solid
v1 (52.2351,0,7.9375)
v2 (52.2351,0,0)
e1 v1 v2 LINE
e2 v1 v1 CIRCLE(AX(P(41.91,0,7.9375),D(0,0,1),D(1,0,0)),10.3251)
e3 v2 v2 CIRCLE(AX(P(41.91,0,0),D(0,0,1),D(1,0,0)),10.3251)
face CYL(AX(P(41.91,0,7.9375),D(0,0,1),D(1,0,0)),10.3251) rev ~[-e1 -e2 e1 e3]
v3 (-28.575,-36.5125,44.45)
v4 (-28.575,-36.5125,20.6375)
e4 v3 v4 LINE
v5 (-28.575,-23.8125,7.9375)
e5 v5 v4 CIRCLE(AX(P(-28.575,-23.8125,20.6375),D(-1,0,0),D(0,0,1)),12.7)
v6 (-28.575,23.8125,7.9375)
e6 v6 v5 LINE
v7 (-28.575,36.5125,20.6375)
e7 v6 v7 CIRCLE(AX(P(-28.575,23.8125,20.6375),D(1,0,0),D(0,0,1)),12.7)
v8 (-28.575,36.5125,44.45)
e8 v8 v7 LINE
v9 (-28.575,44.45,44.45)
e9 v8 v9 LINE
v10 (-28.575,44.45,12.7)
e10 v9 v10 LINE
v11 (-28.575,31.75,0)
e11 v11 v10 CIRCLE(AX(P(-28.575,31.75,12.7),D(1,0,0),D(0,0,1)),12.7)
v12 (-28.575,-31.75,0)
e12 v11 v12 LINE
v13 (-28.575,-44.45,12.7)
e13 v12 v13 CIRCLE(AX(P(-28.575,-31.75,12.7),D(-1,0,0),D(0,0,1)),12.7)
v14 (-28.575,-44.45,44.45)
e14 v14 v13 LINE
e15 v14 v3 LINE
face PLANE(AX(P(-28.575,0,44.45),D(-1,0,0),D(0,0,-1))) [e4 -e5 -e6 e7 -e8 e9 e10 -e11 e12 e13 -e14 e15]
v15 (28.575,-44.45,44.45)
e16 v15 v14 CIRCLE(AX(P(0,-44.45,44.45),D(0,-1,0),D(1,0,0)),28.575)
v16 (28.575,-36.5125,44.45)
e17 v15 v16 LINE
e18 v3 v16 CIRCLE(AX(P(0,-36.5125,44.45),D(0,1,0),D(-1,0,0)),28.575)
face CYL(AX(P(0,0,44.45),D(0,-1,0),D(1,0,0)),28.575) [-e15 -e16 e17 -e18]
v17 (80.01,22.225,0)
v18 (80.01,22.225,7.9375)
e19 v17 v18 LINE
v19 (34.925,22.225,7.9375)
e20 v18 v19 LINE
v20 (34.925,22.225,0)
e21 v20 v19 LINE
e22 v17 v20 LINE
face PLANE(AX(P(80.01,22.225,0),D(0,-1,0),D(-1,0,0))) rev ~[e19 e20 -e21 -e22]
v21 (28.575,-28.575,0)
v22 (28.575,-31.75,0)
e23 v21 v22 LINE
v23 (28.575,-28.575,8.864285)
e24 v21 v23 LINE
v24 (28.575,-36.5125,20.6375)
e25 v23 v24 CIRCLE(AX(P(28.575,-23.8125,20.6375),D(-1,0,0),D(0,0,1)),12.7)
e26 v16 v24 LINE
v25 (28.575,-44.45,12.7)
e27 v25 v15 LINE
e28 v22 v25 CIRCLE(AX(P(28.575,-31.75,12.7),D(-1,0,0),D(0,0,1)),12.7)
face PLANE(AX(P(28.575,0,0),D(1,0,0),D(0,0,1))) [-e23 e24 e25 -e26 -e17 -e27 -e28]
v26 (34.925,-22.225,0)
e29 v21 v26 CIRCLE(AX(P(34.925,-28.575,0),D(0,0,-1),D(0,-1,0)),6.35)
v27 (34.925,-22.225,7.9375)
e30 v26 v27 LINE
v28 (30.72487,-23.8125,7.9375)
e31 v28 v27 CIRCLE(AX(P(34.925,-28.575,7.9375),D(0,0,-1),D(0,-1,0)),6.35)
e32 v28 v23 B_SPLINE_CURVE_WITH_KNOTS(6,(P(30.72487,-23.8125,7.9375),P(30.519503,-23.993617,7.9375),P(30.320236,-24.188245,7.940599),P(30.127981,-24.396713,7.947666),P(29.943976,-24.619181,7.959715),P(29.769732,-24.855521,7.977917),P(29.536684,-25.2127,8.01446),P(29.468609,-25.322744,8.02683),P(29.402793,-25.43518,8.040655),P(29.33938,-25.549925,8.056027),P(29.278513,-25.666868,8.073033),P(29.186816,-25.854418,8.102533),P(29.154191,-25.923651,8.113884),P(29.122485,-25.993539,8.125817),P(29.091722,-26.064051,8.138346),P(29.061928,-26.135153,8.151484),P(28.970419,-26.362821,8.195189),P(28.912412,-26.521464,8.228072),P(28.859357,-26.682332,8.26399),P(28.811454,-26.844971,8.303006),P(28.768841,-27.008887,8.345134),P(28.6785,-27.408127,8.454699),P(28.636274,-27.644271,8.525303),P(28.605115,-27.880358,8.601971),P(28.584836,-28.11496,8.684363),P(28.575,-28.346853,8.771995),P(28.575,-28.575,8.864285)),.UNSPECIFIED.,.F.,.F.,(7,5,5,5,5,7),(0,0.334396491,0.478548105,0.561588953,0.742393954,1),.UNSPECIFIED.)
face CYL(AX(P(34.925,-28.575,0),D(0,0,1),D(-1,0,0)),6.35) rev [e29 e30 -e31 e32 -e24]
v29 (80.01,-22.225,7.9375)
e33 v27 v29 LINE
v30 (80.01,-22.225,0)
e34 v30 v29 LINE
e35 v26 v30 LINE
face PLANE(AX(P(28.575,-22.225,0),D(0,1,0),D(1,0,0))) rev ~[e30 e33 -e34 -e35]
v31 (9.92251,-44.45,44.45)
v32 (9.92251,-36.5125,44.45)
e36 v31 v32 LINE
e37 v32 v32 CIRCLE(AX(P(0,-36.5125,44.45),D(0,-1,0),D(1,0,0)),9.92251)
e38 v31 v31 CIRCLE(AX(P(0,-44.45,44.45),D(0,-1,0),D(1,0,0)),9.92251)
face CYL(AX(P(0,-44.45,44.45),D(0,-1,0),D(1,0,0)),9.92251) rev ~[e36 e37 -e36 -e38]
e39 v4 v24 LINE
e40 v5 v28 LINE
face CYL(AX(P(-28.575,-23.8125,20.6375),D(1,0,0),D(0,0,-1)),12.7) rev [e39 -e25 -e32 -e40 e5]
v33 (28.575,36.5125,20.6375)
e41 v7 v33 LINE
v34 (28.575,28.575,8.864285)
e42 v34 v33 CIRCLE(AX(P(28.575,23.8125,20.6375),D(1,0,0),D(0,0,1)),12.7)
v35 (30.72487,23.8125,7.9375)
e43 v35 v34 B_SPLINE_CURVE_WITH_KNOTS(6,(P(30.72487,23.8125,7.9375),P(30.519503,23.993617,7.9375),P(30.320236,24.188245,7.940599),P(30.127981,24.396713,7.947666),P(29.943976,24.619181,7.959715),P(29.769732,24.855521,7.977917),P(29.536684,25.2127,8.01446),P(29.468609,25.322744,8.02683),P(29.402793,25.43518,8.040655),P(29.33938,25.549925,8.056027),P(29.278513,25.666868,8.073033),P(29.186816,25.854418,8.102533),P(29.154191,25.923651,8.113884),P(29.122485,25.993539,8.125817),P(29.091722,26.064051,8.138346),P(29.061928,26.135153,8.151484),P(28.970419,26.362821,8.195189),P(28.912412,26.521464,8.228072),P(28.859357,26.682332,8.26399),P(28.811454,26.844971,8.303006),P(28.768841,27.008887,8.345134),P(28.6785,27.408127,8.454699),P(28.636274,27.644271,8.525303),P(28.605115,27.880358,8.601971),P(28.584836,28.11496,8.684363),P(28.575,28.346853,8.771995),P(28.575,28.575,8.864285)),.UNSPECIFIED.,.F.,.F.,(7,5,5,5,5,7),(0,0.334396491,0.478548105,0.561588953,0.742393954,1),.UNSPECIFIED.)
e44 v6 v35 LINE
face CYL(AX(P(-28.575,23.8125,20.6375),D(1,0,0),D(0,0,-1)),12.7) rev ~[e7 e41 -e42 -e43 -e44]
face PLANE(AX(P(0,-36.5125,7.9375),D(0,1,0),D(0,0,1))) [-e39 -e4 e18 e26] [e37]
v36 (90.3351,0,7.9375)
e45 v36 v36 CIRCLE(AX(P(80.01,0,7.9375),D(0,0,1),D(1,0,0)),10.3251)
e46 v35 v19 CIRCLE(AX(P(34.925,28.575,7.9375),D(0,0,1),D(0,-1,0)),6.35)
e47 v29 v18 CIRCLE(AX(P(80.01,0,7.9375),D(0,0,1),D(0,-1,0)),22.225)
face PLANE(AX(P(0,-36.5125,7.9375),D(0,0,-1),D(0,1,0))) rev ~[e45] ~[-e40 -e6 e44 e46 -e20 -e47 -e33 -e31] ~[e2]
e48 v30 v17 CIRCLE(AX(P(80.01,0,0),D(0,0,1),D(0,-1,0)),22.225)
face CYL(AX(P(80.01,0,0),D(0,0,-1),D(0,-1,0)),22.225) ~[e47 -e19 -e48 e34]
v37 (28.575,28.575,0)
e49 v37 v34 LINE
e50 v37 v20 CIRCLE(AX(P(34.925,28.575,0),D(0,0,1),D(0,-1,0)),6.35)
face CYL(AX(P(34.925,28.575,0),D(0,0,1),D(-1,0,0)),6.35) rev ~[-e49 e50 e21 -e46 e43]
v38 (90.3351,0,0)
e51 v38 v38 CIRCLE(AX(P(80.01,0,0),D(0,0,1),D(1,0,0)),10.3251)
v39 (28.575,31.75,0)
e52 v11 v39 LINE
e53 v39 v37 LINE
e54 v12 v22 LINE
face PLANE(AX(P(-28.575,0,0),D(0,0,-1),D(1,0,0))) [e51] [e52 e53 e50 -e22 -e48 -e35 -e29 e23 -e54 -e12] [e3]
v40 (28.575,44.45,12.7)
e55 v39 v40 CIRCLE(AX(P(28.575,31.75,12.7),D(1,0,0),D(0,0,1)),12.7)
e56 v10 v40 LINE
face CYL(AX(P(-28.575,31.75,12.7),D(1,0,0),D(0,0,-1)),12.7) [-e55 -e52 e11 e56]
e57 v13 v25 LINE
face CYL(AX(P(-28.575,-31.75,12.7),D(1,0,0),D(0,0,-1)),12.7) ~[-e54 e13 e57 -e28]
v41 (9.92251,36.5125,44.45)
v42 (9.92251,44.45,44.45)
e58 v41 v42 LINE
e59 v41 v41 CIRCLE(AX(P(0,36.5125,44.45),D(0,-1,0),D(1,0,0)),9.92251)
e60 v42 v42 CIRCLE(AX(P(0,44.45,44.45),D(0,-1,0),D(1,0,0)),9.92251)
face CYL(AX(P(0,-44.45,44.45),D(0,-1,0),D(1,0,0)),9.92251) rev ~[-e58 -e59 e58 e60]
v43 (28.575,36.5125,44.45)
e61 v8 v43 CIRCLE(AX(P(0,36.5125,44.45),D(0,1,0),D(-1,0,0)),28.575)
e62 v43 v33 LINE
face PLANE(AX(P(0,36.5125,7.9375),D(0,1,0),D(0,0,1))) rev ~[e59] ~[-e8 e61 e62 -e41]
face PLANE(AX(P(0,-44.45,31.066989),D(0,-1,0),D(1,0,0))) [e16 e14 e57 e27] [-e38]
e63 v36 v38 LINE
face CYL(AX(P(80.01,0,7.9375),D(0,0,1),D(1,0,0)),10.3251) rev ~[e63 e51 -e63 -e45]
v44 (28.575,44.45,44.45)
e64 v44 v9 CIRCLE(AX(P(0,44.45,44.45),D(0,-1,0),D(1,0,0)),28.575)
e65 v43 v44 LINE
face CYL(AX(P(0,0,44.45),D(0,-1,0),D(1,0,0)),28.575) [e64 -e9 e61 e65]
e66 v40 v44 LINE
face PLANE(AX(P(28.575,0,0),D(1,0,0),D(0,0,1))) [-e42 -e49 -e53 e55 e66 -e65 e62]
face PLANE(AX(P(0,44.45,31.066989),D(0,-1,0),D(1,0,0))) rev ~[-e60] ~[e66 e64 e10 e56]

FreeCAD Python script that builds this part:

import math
import FreeCAD as App
import Part
import Sketcher

V = App.Vector
Q = App.Units.Quantity


def edges_at(feature, points):
    """Names of the edges that pass closest to the given points."""
    edges = feature.Shape.Edges
    near = lambda p: min(range(len(edges)), key=lambda i: edges[i].distToShape(Part.Vertex(*p))[0])
    return sorted({f"Edge{near(p) + 1}" for p in points})

doc = App.newDocument("Part")
params = doc.addObject("Spreadsheet::Sheet", "Params")
for row, (alias, value) in enumerate([
    ("sketch1_radius", "1.125 in"),
    ("sketch1_height", "1.75 in"),
    ("pad1_length", "3.5 in"),
    ("sketch2_width", "2.875 in"),
    ("sketch2_height", "2.5625 in"),
    ("sketch4_radius", "0.875 in"),
    ("sketch4_width", "2.025 in"),
    ("pad2_length", "0.3125 in"),
    ("sketch5_diameter", "0.813 in"),
    ("fillet_radius", "0.25 in"),
    ("fillet2_radius", "0.5 in"),
], start=1):
    params.set(f"A{row}", alias)
    params.set(f"B{row}", "=" + value)
    params.setAlias(f"B{row}", alias)

body = doc.addObject("PartDesign::Body", "Body")

sketch1 = body.newObject("Sketcher::SketchObject", "Sketch")
sketch1.AttachmentSupport = (doc.getObject("XZ_Plane"), [""])
sketch1.MapMode = "FlatFace"
sketch1.addGeometry(Part.LineSegment(V(-28.575, 44.45, 0), V(-28.575, 0, 0)), False)
sketch1.addGeometry(Part.LineSegment(V(-28.575, 0, 0), V(28.575, 0, 0)), False)
sketch1.addGeometry(Part.LineSegment(V(28.575, 0, 0), V(28.575, 44.45, 0)), False)
sketch1.addGeometry(Part.ArcOfCircle(Part.Circle(V(0, 44.45, 0), V(0, 0, 1), 28.575), math.radians(0), math.radians(180)), False)
sketch1.addConstraint(Sketcher.Constraint("Coincident", 0, 2, 1, 1))
sketch1.addConstraint(Sketcher.Constraint("Coincident", 1, 2, 2, 1))
sketch1.addConstraint(Sketcher.Constraint("Tangent", 2, 2, 3, 1))
sketch1.addConstraint(Sketcher.Constraint("Tangent", 3, 2, 0, 1))
sketch1.addConstraint(Sketcher.Constraint("Vertical", 0))
sketch1.addConstraint(Sketcher.Constraint("Horizontal", 1))
sketch1.addConstraint(Sketcher.Constraint("Vertical", 2))
sketch1.addConstraint(Sketcher.Constraint("Symmetric", 0, 2, 1, 2, -1, 1))
sketch1.addConstraint(Sketcher.Constraint("Radius", 3, Q("1.125 in")))
sketch1.addConstraint(Sketcher.Constraint("DistanceY", 0, 2, 0, 1, Q("1.75 in")))
sketch1.setExpression("Constraints[8]", "Params.sketch1_radius")
sketch1.setExpression("Constraints[9]", "Params.sketch1_height")
pad1 = body.newObject("PartDesign::Pad", "Pad")
pad1.Profile = sketch1
pad1.setExpression("Length", "Params.pad1_length")
pad1.Midplane = True

sketch2 = body.newObject("Sketcher::SketchObject", "Sketch001")
sketch2.AttachmentSupport = (doc.getObject("YZ_Plane"), [""])
sketch2.MapMode = "FlatFace"
sketch2.addGeometry(Part.LineSegment(V(-36.5125, 73.025, 0), V(-36.5125, 7.9375, 0)), False)
sketch2.addGeometry(Part.LineSegment(V(-36.5125, 7.9375, 0), V(36.5125, 7.9375, 0)), False)
sketch2.addGeometry(Part.LineSegment(V(36.5125, 7.9375, 0), V(36.5125, 73.025, 0)), False)
sketch2.addGeometry(Part.LineSegment(V(36.5125, 73.025, 0), V(-36.5125, 73.025, 0)), False)
sketch2.addConstraint(Sketcher.Constraint("Coincident", 0, 2, 1, 1))
sketch2.addConstraint(Sketcher.Constraint("Coincident", 1, 2, 2, 1))
sketch2.addConstraint(Sketcher.Constraint("Coincident", 2, 2, 3, 1))
sketch2.addConstraint(Sketcher.Constraint("Coincident", 3, 2, 0, 1))
sketch2.addConstraint(Sketcher.Constraint("Vertical", 0))
sketch2.addConstraint(Sketcher.Constraint("Horizontal", 1))
sketch2.addConstraint(Sketcher.Constraint("Vertical", 2))
sketch2.addConstraint(Sketcher.Constraint("Horizontal", 3))
sketch2.addConstraint(Sketcher.Constraint("DistanceX", 1, 1, 1, 2, Q("2.875 in")))
sketch2.addConstraint(Sketcher.Constraint("DistanceY", 0, 2, 0, 1, Q("2.5625 in")))
sketch2.addConstraint(Sketcher.Constraint("DistanceX", 0, 2, -1, 1, Q("1.4375 in")))
sketch2.addConstraint(Sketcher.Constraint("DistanceY", -1, 1, 0, 2, Q("0.3125 in")))
sketch2.setExpression("Constraints[8]", "Params.sketch2_width")
sketch2.setExpression("Constraints[9]", "Params.sketch2_height")
pocket1 = body.newObject("PartDesign::Pocket", "Pocket")
pocket1.Profile = sketch2
pocket1.Type = "ThroughAll"
pocket1.Midplane = True

sketch3 = body.newObject("Sketcher::SketchObject", "Sketch002")
sketch3.AttachmentSupport = (doc.getObject("XZ_Plane"), [""])
sketch3.MapMode = "FlatFace"
sketch3.AttachmentOffset = App.Placement(V(0, 0, 1.75 * 25.4), App.Rotation())
sketch3.addGeometry(Part.Circle(V(0, 44.45, 0), V(0, 0, 1), 9.92251), False)
sketch3.addConstraint(Sketcher.Constraint("PointOnObject", 0, 3, -2))
sketch3.addConstraint(Sketcher.Constraint("Diameter", 0, Q("0.7813 in")))
sketch3.addConstraint(Sketcher.Constraint("DistanceY", -1, 1, 0, 3, Q("1.75 in")))
pocket2 = body.newObject("PartDesign::Pocket", "Pocket001")
pocket2.Profile = sketch3
pocket2.Type = "ThroughAll"

sketch4 = body.newObject("Sketcher::SketchObject", "Sketch003")
sketch4.AttachmentSupport = (doc.getObject("XY_Plane"), [""])
sketch4.MapMode = "FlatFace"
sketch4.addGeometry(Part.LineSegment(V(80.01, 22.225, 0), V(28.575, 22.225, 0)), False)
sketch4.addGeometry(Part.LineSegment(V(28.575, 22.225, 0), V(28.575, -22.225, 0)), False)
sketch4.addGeometry(Part.LineSegment(V(28.575, -22.225, 0), V(80.01, -22.225, 0)), False)
sketch4.addGeometry(Part.ArcOfCircle(Part.Circle(V(80.01, 0, 0), V(0, 0, 1), 22.225), math.radians(-90), math.radians(90)), False)
sketch4.addConstraint(Sketcher.Constraint("Coincident", 0, 2, 1, 1))
sketch4.addConstraint(Sketcher.Constraint("Coincident", 1, 2, 2, 1))
sketch4.addConstraint(Sketcher.Constraint("Tangent", 2, 2, 3, 1))
sketch4.addConstraint(Sketcher.Constraint("Tangent", 3, 2, 0, 1))
sketch4.addConstraint(Sketcher.Constraint("Horizontal", 0))
sketch4.addConstraint(Sketcher.Constraint("Vertical", 1))
sketch4.addConstraint(Sketcher.Constraint("Horizontal", 2))
sketch4.addConstraint(Sketcher.Constraint("PointOnObject", 3, 3, -1))
sketch4.addConstraint(Sketcher.Constraint("Radius", 3, Q("0.875 in")))
sketch4.addConstraint(Sketcher.Constraint("DistanceX", 0, 2, 0, 1, Q("2.025 in")))
sketch4.addConstraint(Sketcher.Constraint("DistanceX", -1, 1, 3, 3, Q("3.15 in")))
sketch4.setExpression("Constraints[8]", "Params.sketch4_radius")
sketch4.setExpression("Constraints[9]", "Params.sketch4_width")
pad2 = body.newObject("PartDesign::Pad", "Pad001")
pad2.Profile = sketch4
pad2.setExpression("Length", "Params.pad2_length")

sketch5 = body.newObject("Sketcher::SketchObject", "Sketch004")
sketch5.AttachmentSupport = (doc.getObject("XY_Plane"), [""])
sketch5.MapMode = "FlatFace"
sketch5.AttachmentOffset = App.Placement(V(0, 0, 0.3125 * 25.4), App.Rotation())
sketch5.addGeometry(Part.Circle(V(41.91, 0, 0), V(0, 0, 1), 10.3251), False)
sketch5.addGeometry(Part.Circle(V(80.01, 0, 0), V(0, 0, 1), 10.3251), False)
sketch5.addConstraint(Sketcher.Constraint("Equal", 0, 1))
sketch5.addConstraint(Sketcher.Constraint("PointOnObject", 0, 3, -1))
sketch5.addConstraint(Sketcher.Constraint("PointOnObject", 1, 3, -1))
sketch5.addConstraint(Sketcher.Constraint("Diameter", 0, Q("0.813 in")))
sketch5.addConstraint(Sketcher.Constraint("DistanceX", 0, 3, 1, 3, Q("1.5 in")))
sketch5.addConstraint(Sketcher.Constraint("DistanceX", -1, 1, 0, 3, Q("1.65 in")))
sketch5.setExpression("Constraints[3]", "Params.sketch5_diameter")
pocket3 = body.newObject("PartDesign::Pocket", "Pocket002")
pocket3.Profile = sketch5
pocket3.Type = "ThroughAll"
doc.recompute()

fillet = body.newObject("PartDesign::Fillet", "Fillet")
fillet.Base = (pocket3, edges_at(pocket3, [(28.575, -22.225, 3.969), (28.575, 22.225, 3.969)]))
fillet.setExpression("Radius", "Params.fillet_radius")
doc.recompute()

fillet2 = body.newObject("PartDesign::Fillet", "Fillet001")
fillet2.Base = (fillet, edges_at(fillet, [
    (0, -36.513, 7.938),
    (0, 36.513, 7.938),
    (0, -44.45, 0),
    (0, 44.45, 0),
]))
fillet2.setExpression("Radius", "Params.fillet2_radius")

doc.recompute()
